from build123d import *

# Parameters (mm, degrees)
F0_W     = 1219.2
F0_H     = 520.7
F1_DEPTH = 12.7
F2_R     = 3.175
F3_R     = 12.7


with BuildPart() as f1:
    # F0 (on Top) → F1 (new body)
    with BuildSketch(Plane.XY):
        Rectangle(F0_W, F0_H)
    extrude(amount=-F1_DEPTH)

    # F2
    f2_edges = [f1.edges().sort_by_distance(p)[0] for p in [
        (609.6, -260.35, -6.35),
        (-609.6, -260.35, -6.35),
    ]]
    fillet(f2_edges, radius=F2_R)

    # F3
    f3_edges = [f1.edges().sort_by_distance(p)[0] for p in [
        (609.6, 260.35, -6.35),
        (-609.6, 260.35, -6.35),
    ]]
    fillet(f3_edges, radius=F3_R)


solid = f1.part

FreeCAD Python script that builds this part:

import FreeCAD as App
import Part
import Sketcher

V = App.Vector
Q = App.Units.Quantity


def edges_at(feature, points):
    """Names of the edges that pass closest to the given points."""
    edges = feature.Shape.Edges
    near = lambda p: min(range(len(edges)), key=lambda i: edges[i].distToShape(Part.Vertex(*p))[0])
    return sorted({f"Edge{near(p) + 1}" for p in points})

doc = App.newDocument("Part")
body = doc.addObject("PartDesign::Body", "Body")

sketch1 = body.newObject("Sketcher::SketchObject", "Sketch")
sketch1.AttachmentSupport = (doc.getObject("XY_Plane"), [""])
sketch1.MapMode = "FlatFace"
sketch1.addGeometry([
    Part.LineSegment(V(-610, 260, 0), V(-610, -260, 0)),
    Part.LineSegment(V(-610, -260, 0), V(610, -260, 0)),
    Part.LineSegment(V(610, -260, 0), V(610, 260, 0)),
    Part.LineSegment(V(610, 260, 0), V(-610, 260, 0)),
], False)
sketch1.addConstraint([
    Sketcher.Constraint("Coincident", 0, 2, 1, 1),
    Sketcher.Constraint("Coincident", 1, 2, 2, 1),
    Sketcher.Constraint("Coincident", 2, 2, 3, 1),
    Sketcher.Constraint("Coincident", 3, 2, 0, 1),
    Sketcher.Constraint("Vertical", 0),
    Sketcher.Constraint("Horizontal", 1),
    Sketcher.Constraint("Vertical", 2),
    Sketcher.Constraint("Horizontal", 3),
    Sketcher.Constraint("Symmetric", 0, 2, 2, 2, -1, 1),
    Sketcher.Constraint("DistanceX", 1, 1, 1, 2, Q("48 in")),
    Sketcher.Constraint("DistanceY", 0, 2, 0, 1, Q("20.5 in")),
])
pad1 = body.newObject("PartDesign::Pad", "Pad")
pad1.Profile = sketch1
pad1.Length = Q("0.5 in")
pad1.Reversed = True
doc.recompute()

fillet = body.newObject("PartDesign::Fillet", "Fillet")
fillet.Base = (pad1, edges_at(pad1, [(609.6, -260.35, -6.35), (-609.6, -260.35, -6.35)]))
fillet.Radius = Q("0.125 in")
doc.recompute()

fillet2 = body.newObject("PartDesign::Fillet", "Fillet001")
fillet2.Base = (fillet, edges_at(fillet, [(609.6, 260.35, -6.35), (-609.6, 260.35, -6.35)]))
fillet2.Radius = Q("0.5 in")

doc.recompute()
